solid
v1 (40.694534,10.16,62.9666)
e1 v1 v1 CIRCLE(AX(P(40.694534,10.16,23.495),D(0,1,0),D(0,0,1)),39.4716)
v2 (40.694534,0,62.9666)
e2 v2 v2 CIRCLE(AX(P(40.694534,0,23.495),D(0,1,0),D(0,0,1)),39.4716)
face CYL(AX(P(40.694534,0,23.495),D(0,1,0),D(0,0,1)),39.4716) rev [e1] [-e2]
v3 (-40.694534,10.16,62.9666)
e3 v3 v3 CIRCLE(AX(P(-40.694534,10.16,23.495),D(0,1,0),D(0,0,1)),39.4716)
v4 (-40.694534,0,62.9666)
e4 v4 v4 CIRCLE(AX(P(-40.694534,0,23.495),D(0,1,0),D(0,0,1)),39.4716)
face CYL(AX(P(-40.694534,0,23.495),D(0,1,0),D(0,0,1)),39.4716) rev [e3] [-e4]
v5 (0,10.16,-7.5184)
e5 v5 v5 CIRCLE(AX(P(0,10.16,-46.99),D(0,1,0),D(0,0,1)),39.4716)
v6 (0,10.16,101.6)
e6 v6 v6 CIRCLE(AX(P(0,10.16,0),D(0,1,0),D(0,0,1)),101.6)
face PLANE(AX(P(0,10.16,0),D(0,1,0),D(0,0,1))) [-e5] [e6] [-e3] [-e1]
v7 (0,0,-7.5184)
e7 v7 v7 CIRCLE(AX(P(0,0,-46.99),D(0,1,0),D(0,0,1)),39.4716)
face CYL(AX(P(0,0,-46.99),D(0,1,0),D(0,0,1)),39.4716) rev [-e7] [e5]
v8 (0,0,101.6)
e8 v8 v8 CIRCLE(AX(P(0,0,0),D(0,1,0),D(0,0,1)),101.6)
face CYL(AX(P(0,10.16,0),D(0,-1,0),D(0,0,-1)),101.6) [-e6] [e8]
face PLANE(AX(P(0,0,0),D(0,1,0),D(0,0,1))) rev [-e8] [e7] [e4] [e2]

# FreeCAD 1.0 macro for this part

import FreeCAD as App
import Part
import Sketcher

V = App.Vector
Q = App.Units.Quantity

doc = App.newDocument("Part")
params = doc.addObject("Spreadsheet::Sheet", "Params")
for row, (alias, value) in enumerate([
    ("sketch1_diameter", "8 in"),
    ("pad1_length", "0.4 in"),
    ("sketch2_diameter", "3.108 in"),
], start=1):
    params.set(f"A{row}", alias)
    params.set(f"B{row}", "=" + value)
    params.setAlias(f"B{row}", alias)

body = doc.addObject("PartDesign::Body", "Body")

# Sketch on XZ plane
sketch1 = body.newObject("Sketcher::SketchObject", "Sketch")
sketch1.AttachmentSupport = (doc.getObject("XZ_Plane"), [""])
sketch1.MapMode = "FlatFace"
sketch1.addGeometry(Part.Circle(V(0, 0, 0), V(0, 0, 1), 102), False)
sketch1.addConstraint(Sketcher.Constraint("Coincident", 0, 3, -1, 1))
sketch1.addConstraint(Sketcher.Constraint("Diameter", 0, Q("8 in")))
sketch1.setExpression("Constraints[1]", "Params.sketch1_diameter")
pad1 = body.newObject("PartDesign::Pad", "Pad")
pad1.Profile = sketch1
pad1.setExpression("Length", "Params.pad1_length")
pad1.Reversed = True

# Sketch on XZ plane
sketch2 = body.newObject("Sketcher::SketchObject", "Sketch001")
sketch2.AttachmentSupport = (doc.getObject("XZ_Plane"), [""])
sketch2.MapMode = "FlatFace"
sketch2.AttachmentOffset = App.Placement(V(0, 0, -0.4 * 25.4), App.Rotation())
sketch2.addGeometry(Part.Circle(V(0, -47, 0), V(0, 0, 1), 39), False)
sketch2.addGeometry(Part.Circle(V(41, 23, 0), V(0, 0, 1), 39), False)
sketch2.addGeometry(Part.Circle(V(-41, 23, 0), V(0, 0, 1), 39), False)
sketch2.addConstraint(Sketcher.Constraint("Equal", 0, 1))
sketch2.addConstraint(Sketcher.Constraint("Equal", 1, 2))
sketch2.addConstraint(Sketcher.Constraint("Symmetric", 1, 3, 2, 3, -2))
sketch2.addConstraint(Sketcher.Constraint("PointOnObject", 0, 3, -2))
sketch2.addConstraint(Sketcher.Constraint("Diameter", 0, Q("3.108 in")))
sketch2.addConstraint(Sketcher.Constraint("DistanceY", 0, 3, -1, 1, Q("1.85 in")))
sketch2.addConstraint(Sketcher.Constraint("DistanceY", -1, 1, 1, 3, Q("0.925 in")))
sketch2.addConstraint(Sketcher.Constraint("DistanceX", -1, 1, 1, 3, Q("40.694534 mm")))
sketch2.setExpression("Constraints[4]", "Params.sketch2_diameter")
pocket1 = body.newObject("PartDesign::Pocket", "Pocket")
pocket1.Profile = sketch2
pocket1.Type = "ThroughAll"
pocket1.Reversed = True

doc.recompute()
